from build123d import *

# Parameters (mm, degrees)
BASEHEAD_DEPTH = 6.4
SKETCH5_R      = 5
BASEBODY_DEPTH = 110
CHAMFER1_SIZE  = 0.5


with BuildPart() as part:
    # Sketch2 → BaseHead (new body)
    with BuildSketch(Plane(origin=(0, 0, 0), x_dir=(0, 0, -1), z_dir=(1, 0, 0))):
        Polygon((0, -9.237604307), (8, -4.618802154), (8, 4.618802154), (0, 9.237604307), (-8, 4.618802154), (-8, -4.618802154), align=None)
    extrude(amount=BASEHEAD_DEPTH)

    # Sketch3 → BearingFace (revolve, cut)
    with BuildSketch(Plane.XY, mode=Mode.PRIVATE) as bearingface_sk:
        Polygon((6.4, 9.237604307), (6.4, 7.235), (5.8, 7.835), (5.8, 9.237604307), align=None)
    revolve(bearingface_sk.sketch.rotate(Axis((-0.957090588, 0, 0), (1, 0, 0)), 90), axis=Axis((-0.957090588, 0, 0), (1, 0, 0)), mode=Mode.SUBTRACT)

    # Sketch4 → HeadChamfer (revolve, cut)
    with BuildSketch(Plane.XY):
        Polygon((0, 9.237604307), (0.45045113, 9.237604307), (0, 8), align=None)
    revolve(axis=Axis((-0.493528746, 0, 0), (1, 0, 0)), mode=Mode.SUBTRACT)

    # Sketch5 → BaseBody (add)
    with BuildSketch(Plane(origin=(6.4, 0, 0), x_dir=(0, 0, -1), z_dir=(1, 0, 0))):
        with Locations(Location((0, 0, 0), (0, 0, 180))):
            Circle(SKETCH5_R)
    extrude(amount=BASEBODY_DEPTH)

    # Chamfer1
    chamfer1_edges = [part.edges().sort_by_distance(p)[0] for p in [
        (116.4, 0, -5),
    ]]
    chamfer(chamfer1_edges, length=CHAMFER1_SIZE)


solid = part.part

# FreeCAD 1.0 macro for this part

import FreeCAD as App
import Part
import Sketcher
from FreeCAD import Vector
Q = App.Units.Quantity


def edges_at(feature, points):
    """Names of the edges that pass closest to the given points."""
    edges = feature.Shape.Edges
    near = lambda p: min(range(len(edges)), key=lambda i: edges[i].distToShape(Part.Vertex(*p))[0])
    return sorted({f"Edge{near(p) + 1}" for p in points})

doc = App.newDocument("Part")
body = doc.addObject("PartDesign::Body", "Body")

# Sketch on YZ plane
sketch1 = body.newObject("Sketcher::SketchObject", "Sketch")
sketch1.AttachmentSupport = (doc.getObject("YZ_Plane"), [""])
sketch1.MapMode = "FlatFace"
sketch1.addGeometry(Part.LineSegment(Vector(-9, 0, 0), Vector(-5, -8, 0)), False)
sketch1.addGeometry(Part.LineSegment(Vector(-5, -8, 0), Vector(5, -8, 0)), False)
sketch1.addGeometry(Part.LineSegment(Vector(5, -8, 0), Vector(9, 0, 0)), False)
sketch1.addGeometry(Part.LineSegment(Vector(9, 0, 0), Vector(5, 8, 0)), False)
sketch1.addGeometry(Part.LineSegment(Vector(5, 8, 0), Vector(-5, 8, 0)), False)
sketch1.addGeometry(Part.LineSegment(Vector(-5, 8, 0), Vector(-9, 0, 0)), False)
sketch1.addConstraint(Sketcher.Constraint("Coincident", 0, 2, 1, 1))
sketch1.addConstraint(Sketcher.Constraint("Coincident", 1, 2, 2, 1))
sketch1.addConstraint(Sketcher.Constraint("Coincident", 2, 2, 3, 1))
sketch1.addConstraint(Sketcher.Constraint("Coincident", 3, 2, 4, 1))
sketch1.addConstraint(Sketcher.Constraint("Coincident", 4, 2, 5, 1))
sketch1.addConstraint(Sketcher.Constraint("Coincident", 5, 2, 0, 1))
sketch1.addConstraint(Sketcher.Constraint("Horizontal", 1))
sketch1.addConstraint(Sketcher.Constraint("Horizontal", 4))
sketch1.addConstraint(Sketcher.Constraint("Symmetric", 0, 2, 3, 2, -1, 1))
sketch1.addConstraint(Sketcher.Constraint("Symmetric", 2, 2, 5, 2, -1, 1))
sketch1.addConstraint(Sketcher.Constraint("PointOnObject", 2, 2, -1))
sketch1.addConstraint(Sketcher.Constraint("Parallel", 2, 5))
sketch1.addConstraint(Sketcher.Constraint("Vertical", 1, 2, 3, 2))
sketch1.addConstraint(Sketcher.Constraint("Angle", 0, Q("-60 deg")))
sketch1.addConstraint(Sketcher.Constraint("DistanceY", 0, 2, -1, 1, Q("8 mm")))
sketch1.addConstraint(Sketcher.Constraint("DistanceX", 1, 1, 1, 2, Q("9.237604 mm")))
pad1 = body.newObject("PartDesign::Pad", "Pad")
pad1.Profile = sketch1
pad1.Length = 6.4

# Sketch on XY plane
sketch2 = body.newObject("Sketcher::SketchObject", "Sketch001")
sketch2.AttachmentSupport = (doc.getObject("XY_Plane"), [""])
sketch2.MapMode = "FlatFace"
sketch2.addGeometry(Part.LineSegment(Vector(6.4, 7.2, 0), Vector(6.4, 9.2, 0)), False)
sketch2.addGeometry(Part.LineSegment(Vector(6.4, 9.2, 0), Vector(5.8, 9.2, 0)), False)
sketch2.addGeometry(Part.LineSegment(Vector(5.8, 9.2, 0), Vector(5.8, 7.8, 0)), False)
sketch2.addGeometry(Part.LineSegment(Vector(5.8, 7.8, 0), Vector(6.4, 7.2, 0)), False)
sketch2.addConstraint(Sketcher.Constraint("Coincident", 0, 2, 1, 1))
sketch2.addConstraint(Sketcher.Constraint("Coincident", 1, 2, 2, 1))
sketch2.addConstraint(Sketcher.Constraint("Coincident", 2, 2, 3, 1))
sketch2.addConstraint(Sketcher.Constraint("Coincident", 3, 2, 0, 1))
sketch2.addConstraint(Sketcher.Constraint("Vertical", 0))
sketch2.addConstraint(Sketcher.Constraint("Horizontal", 1))
sketch2.addConstraint(Sketcher.Constraint("Vertical", 2))
sketch2.addConstraint(Sketcher.Constraint("Angle", 3, Q("-45 deg")))
sketch2.addConstraint(Sketcher.Constraint("DistanceX", 1, 2, 1, 1, Q("0.6 mm")))
sketch2.addConstraint(Sketcher.Constraint("DistanceX", -1, 1, 0, 2, Q("6.4 mm")))
sketch2.addConstraint(Sketcher.Constraint("DistanceY", -1, 1, 2, 2, Q("7.835 mm")))
sketch2.addConstraint(Sketcher.Constraint("DistanceY", 0, 1, 0, 2, Q("2.002604 mm")))
groove = body.newObject("PartDesign::Groove", "Groove")
groove.Profile = sketch2
groove.ReferenceAxis = (sketch2, ["H_Axis"])
groove.Angle = 360

# Sketch on XY plane
sketch3 = body.newObject("Sketcher::SketchObject", "Sketch002")
sketch3.AttachmentSupport = (doc.getObject("XY_Plane"), [""])
sketch3.MapMode = "FlatFace"
sketch3.addGeometry(Part.LineSegment(Vector(0.45, 9.24, 0), Vector(0, 9.24, 0)), False)
sketch3.addGeometry(Part.LineSegment(Vector(0, 9.24, 0), Vector(0, 8, 0)), False)
sketch3.addGeometry(Part.LineSegment(Vector(0, 8, 0), Vector(0.45, 9.24, 0)), False)
sketch3.addConstraint(Sketcher.Constraint("Coincident", 0, 2, 1, 1))
sketch3.addConstraint(Sketcher.Constraint("Coincident", 1, 2, 2, 1))
sketch3.addConstraint(Sketcher.Constraint("Coincident", 2, 2, 0, 1))
sketch3.addConstraint(Sketcher.Constraint("Horizontal", 0))
sketch3.addConstraint(Sketcher.Constraint("Vertical", 1))
sketch3.addConstraint(Sketcher.Constraint("PointOnObject", 0, 2, -2))
sketch3.addConstraint(Sketcher.Constraint("Angle", 2, Q("70 deg")))
sketch3.addConstraint(Sketcher.Constraint("DistanceY", -1, 1, 1, 2, Q("8 mm")))
sketch3.addConstraint(Sketcher.Constraint("DistanceX", 0, 2, 0, 1, Q("0.450451 mm")))
groove2 = body.newObject("PartDesign::Groove", "Groove001")
groove2.Profile = sketch3
groove2.ReferenceAxis = (sketch3, ["H_Axis"])
groove2.Angle = 360

# Sketch on YZ plane
sketch4 = body.newObject("Sketcher::SketchObject", "Sketch003")
sketch4.AttachmentSupport = (doc.getObject("YZ_Plane"), [""])
sketch4.MapMode = "FlatFace"
sketch4.AttachmentOffset = App.Placement(Vector(0, 0, 6.4), App.Rotation())
sketch4.addGeometry(Part.Circle(Vector(0, 0, 0), Vector(0, 0, 1), 5), False)
sketch4.addConstraint(Sketcher.Constraint("Coincident", 0, 3, -1, 1))
sketch4.addConstraint(Sketcher.Constraint("Diameter", 0, Q("10 mm")))
pad2 = body.newObject("PartDesign::Pad", "Pad001")
pad2.Profile = sketch4
pad2.Length = 110
doc.recompute()

chamfer = body.newObject("PartDesign::Chamfer", "Chamfer")
chamfer.Base = (pad2, edges_at(pad2, [(116.4, 0, -5)]))
chamfer.Size = 0.5

doc.recompute()
